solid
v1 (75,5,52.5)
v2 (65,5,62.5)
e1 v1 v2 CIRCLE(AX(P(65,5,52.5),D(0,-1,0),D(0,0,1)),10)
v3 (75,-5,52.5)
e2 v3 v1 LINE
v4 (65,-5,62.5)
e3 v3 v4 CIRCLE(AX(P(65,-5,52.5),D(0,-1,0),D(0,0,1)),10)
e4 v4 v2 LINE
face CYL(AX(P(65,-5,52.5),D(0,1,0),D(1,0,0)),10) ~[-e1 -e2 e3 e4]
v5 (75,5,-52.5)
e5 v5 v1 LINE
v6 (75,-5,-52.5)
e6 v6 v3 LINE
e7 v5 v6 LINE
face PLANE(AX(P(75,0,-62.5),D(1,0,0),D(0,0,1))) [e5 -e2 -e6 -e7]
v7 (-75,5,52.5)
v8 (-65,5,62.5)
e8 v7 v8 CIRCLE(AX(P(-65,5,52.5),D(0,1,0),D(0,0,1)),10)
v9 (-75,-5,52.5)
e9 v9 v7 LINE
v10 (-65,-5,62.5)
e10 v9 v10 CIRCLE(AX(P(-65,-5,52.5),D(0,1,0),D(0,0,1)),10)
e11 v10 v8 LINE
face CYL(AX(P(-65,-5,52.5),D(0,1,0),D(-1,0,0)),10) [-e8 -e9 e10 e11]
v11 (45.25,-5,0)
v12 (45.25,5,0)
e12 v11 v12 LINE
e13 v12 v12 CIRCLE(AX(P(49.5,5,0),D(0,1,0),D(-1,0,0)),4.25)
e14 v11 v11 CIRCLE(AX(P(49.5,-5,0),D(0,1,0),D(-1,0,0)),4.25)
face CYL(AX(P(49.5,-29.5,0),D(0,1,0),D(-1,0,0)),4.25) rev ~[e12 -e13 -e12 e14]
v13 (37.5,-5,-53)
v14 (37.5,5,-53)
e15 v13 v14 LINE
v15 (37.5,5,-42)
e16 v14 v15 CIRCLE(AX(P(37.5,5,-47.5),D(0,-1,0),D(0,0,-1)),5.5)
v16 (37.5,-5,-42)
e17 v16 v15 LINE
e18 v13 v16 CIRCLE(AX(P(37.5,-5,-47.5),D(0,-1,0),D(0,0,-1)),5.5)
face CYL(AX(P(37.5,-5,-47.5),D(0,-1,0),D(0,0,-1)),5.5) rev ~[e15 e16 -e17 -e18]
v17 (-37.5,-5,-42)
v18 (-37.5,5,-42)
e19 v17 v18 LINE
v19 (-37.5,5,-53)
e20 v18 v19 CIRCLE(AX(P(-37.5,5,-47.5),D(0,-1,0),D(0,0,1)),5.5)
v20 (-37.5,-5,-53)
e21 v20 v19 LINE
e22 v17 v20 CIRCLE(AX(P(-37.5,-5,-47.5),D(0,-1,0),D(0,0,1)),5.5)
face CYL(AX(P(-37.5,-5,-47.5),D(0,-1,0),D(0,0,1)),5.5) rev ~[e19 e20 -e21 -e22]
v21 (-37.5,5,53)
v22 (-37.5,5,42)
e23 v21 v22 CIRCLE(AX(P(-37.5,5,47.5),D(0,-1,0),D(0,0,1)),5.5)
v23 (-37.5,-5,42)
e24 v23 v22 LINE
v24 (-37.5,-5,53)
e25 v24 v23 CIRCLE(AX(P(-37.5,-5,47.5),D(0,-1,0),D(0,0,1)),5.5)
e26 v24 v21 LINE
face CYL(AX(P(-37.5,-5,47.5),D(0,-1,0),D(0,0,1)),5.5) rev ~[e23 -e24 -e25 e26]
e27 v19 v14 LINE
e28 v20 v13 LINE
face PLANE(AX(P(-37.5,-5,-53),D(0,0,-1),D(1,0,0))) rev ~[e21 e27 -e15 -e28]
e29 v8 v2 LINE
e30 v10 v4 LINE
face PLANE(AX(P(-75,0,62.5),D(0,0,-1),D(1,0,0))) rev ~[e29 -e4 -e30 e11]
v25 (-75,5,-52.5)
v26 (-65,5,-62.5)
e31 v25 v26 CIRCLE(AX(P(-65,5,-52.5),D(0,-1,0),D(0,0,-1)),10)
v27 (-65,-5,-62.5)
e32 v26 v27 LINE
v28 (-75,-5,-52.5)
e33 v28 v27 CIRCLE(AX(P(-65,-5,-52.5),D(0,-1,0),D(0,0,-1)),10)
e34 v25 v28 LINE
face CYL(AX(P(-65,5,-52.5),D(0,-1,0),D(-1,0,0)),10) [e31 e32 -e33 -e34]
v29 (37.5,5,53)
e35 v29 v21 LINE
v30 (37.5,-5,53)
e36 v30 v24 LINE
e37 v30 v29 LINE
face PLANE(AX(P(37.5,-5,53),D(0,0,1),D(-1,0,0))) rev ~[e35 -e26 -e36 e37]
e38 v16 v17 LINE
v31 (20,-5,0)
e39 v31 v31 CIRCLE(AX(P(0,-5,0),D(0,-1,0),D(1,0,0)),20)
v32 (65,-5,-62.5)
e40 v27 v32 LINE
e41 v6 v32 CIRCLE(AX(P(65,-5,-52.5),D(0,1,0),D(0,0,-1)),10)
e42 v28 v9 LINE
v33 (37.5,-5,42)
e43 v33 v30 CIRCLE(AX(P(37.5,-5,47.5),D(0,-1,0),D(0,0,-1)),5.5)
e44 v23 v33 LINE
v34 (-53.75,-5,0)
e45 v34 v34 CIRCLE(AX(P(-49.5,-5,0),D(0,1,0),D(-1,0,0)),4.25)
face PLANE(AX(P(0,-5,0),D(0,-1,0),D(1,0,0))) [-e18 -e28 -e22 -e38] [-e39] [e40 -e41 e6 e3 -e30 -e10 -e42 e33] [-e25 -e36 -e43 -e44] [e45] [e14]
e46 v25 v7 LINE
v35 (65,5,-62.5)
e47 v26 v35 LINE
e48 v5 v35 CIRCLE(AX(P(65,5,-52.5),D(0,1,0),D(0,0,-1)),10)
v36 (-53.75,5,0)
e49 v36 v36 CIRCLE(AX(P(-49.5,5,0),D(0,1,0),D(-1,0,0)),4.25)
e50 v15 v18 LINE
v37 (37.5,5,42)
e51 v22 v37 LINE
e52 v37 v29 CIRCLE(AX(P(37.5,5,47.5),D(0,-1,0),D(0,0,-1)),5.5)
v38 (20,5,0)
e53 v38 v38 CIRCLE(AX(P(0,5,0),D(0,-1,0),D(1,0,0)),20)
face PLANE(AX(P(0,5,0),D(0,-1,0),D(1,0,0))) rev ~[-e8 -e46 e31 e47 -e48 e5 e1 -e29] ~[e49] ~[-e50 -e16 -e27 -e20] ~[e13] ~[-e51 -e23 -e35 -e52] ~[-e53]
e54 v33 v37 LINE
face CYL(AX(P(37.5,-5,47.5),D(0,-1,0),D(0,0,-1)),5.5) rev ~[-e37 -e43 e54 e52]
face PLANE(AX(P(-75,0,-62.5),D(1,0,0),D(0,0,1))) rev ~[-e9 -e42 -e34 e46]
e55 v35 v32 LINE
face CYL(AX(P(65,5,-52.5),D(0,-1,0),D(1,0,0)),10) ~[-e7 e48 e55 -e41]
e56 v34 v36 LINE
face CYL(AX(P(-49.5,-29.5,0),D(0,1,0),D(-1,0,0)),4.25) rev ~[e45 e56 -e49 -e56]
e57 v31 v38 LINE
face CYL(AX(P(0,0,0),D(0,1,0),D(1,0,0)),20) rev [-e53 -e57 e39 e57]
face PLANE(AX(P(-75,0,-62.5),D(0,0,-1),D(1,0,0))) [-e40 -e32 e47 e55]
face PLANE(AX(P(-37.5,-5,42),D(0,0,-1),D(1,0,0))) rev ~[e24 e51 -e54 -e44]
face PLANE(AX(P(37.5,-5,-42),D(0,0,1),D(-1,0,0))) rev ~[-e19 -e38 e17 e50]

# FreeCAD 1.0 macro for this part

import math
import FreeCAD as App
import Part
import Sketcher
from FreeCAD import Vector


def edges_at(feature, points):
    """Names of the edges that pass closest to the given points."""
    edges = feature.Shape.Edges
    near = lambda p: min(range(len(edges)), key=lambda i: edges[i].distToShape(Part.Vertex(*p))[0])
    return sorted({f"Edge{near(p) + 1}" for p in points})

doc = App.newDocument("Part")
body = doc.addObject("PartDesign::Body", "Body")

# Sketch on XZ plane
sketch1 = body.newObject("Sketcher::SketchObject", "Sketch")
sketch1.AttachmentSupport = (doc.getObject("XZ_Plane"), [""])
sketch1.MapMode = "FlatFace"
sketch1.addGeometry([
    Part.LineSegment(Vector(-75, 62, 0), Vector(-75, -62, 0)),  # 0
    Part.LineSegment(Vector(-75, -62, 0), Vector(75, -62, 0)),  # 1
    Part.LineSegment(Vector(75, -62, 0), Vector(75, 62, 0)),  # 2
    Part.LineSegment(Vector(75, 62, 0), Vector(-75, 62, 0)),  # 3
    Part.Circle(Vector(0, 0, 0), Vector(0, 0, 1), 20),  # 4
], False)
sketch1.addConstraint([
    Sketcher.Constraint("Coincident", 0, 2, 1, 1),
    Sketcher.Constraint("Coincident", 1, 2, 2, 1),
    Sketcher.Constraint("Coincident", 2, 2, 3, 1),
    Sketcher.Constraint("Coincident", 3, 2, 0, 1),
    Sketcher.Constraint("Vertical", 0),
    Sketcher.Constraint("Horizontal", 1),
    Sketcher.Constraint("Vertical", 2),
    Sketcher.Constraint("Horizontal", 3),
    Sketcher.Constraint("Coincident", 4, 3, -1, 1),
    Sketcher.Constraint("Symmetric", 0, 2, 2, 2, -1, 1),
    Sketcher.Constraint("Diameter", 4, 40.0),
    Sketcher.Constraint("DistanceX", 1, 1, 1, 2, 150.0),
    Sketcher.Constraint("DistanceY", 0, 2, 0, 1, 125.0),
])
pad1 = body.newObject("PartDesign::Pad", "Pad")
pad1.Profile = sketch1
pad1.Length = 10
pad1.Midplane = True
doc.recompute()

fillet = body.newObject("PartDesign::Fillet", "Fillet")
fillet.Base = (pad1, edges_at(pad1, [
    (-75, 0, 62.5),
    (75, 0, 62.5),
    (75, 0, -62.5),
    (-75, 0, -62.5),
]))
fillet.Radius = 10

# Sketch on XZ plane
sketch2 = body.newObject("Sketcher::SketchObject", "Sketch001")
sketch2.AttachmentSupport = (doc.getObject("XZ_Plane"), [""])
sketch2.MapMode = "FlatFace"
sketch2.AttachmentOffset = App.Placement(Vector(0, 0, 5), App.Rotation())
sketch2.addGeometry([
    Part.Circle(Vector(-49.5, 0, 0), Vector(0, 0, 1), 4.2),
    Part.Circle(Vector(49.5, 0, 0), Vector(0, 0, 1), 4.2),
], False)
sketch2.addConstraint([
    Sketcher.Constraint("Equal", 0, 1),
    Sketcher.Constraint("Symmetric", 0, 3, 1, 3, -1, 1),
    Sketcher.Constraint("PointOnObject", 0, 3, -1),
    Sketcher.Constraint("Diameter", 0, 8.5),
    Sketcher.Constraint("DistanceX", 0, 3, 1, 3, 99.0),
])
doc.recompute()
hole = body.newObject("PartDesign::Hole", "Hole")
hole.Profile = sketch2
hole.ThreadType = "None"
hole.Diameter = 8.5
hole.DepthType = "Dimension"
hole.Depth = 24.5
hole.DrillPoint = "Angled"
hole.DrillPointAngle = 118

# Sketch on XZ plane
sketch3 = body.newObject("Sketcher::SketchObject", "Sketch002")
sketch3.AttachmentSupport = (doc.getObject("XZ_Plane"), [""])
sketch3.MapMode = "FlatFace"
sketch3.AttachmentOffset = App.Placement(Vector(0, 0, 5), App.Rotation())
sketch3.addGeometry([
    Part.ArcOfCircle(Part.Circle(Vector(-38, 48, 0), Vector(0, 0, 1), 6), math.radians(90), math.radians(270)),  # 0
    Part.LineSegment(Vector(-38, 42, 0), Vector(38, 42, 0)),  # 1
    Part.ArcOfCircle(Part.Circle(Vector(38, 48, 0), Vector(0, 0, 1), 6), math.radians(-90), math.radians(90)),  # 2
    Part.LineSegment(Vector(38, 53, 0), Vector(-38, 53, 0)),  # 3
    Part.ArcOfCircle(Part.Circle(Vector(38, -48, 0), Vector(0, 0, 1), 6), math.radians(-90), math.radians(90)),  # 4
    Part.LineSegment(Vector(38, -42, 0), Vector(-38, -42, 0)),  # 5
    Part.ArcOfCircle(Part.Circle(Vector(-38, -48, 0), Vector(0, 0, 1), 6), math.radians(90), math.radians(270)),  # 6
    Part.LineSegment(Vector(-38, -53, 0), Vector(38, -53, 0)),  # 7
], False)
sketch3.addConstraint([
    Sketcher.Constraint("Tangent", 0, 2, 1, 1),
    Sketcher.Constraint("Tangent", 1, 2, 2, 1),
    Sketcher.Constraint("Tangent", 2, 2, 3, 1),
    Sketcher.Constraint("Tangent", 3, 2, 0, 1),
    Sketcher.Constraint("Tangent", 4, 2, 5, 1),
    Sketcher.Constraint("Tangent", 5, 2, 6, 1),
    Sketcher.Constraint("Tangent", 6, 2, 7, 1),
    Sketcher.Constraint("Tangent", 7, 2, 4, 1),
    Sketcher.Constraint("Horizontal", 1),
    Sketcher.Constraint("Horizontal", 3),
    Sketcher.Constraint("Horizontal", 5),
    Sketcher.Constraint("Horizontal", 7),
    Sketcher.Constraint("Equal", 2, 4),
    Sketcher.Constraint("Symmetric", 0, 3, 4, 3, -1, 1),
    Sketcher.Constraint("Vertical", 2, 3, 4, 3),
    Sketcher.Constraint("Vertical", 0, 3, 6, 3),
    Sketcher.Constraint("Radius", 0, 5.5),
    Sketcher.Constraint("DistanceX", 1, 1, 1, 2, 75.0),
    Sketcher.Constraint("DistanceY", -1, 1, 0, 2, 42.0),
])
pocket1 = body.newObject("PartDesign::Pocket", "Pocket")
pocket1.Profile = sketch3
pocket1.Type = "ThroughAll"

doc.recompute()
